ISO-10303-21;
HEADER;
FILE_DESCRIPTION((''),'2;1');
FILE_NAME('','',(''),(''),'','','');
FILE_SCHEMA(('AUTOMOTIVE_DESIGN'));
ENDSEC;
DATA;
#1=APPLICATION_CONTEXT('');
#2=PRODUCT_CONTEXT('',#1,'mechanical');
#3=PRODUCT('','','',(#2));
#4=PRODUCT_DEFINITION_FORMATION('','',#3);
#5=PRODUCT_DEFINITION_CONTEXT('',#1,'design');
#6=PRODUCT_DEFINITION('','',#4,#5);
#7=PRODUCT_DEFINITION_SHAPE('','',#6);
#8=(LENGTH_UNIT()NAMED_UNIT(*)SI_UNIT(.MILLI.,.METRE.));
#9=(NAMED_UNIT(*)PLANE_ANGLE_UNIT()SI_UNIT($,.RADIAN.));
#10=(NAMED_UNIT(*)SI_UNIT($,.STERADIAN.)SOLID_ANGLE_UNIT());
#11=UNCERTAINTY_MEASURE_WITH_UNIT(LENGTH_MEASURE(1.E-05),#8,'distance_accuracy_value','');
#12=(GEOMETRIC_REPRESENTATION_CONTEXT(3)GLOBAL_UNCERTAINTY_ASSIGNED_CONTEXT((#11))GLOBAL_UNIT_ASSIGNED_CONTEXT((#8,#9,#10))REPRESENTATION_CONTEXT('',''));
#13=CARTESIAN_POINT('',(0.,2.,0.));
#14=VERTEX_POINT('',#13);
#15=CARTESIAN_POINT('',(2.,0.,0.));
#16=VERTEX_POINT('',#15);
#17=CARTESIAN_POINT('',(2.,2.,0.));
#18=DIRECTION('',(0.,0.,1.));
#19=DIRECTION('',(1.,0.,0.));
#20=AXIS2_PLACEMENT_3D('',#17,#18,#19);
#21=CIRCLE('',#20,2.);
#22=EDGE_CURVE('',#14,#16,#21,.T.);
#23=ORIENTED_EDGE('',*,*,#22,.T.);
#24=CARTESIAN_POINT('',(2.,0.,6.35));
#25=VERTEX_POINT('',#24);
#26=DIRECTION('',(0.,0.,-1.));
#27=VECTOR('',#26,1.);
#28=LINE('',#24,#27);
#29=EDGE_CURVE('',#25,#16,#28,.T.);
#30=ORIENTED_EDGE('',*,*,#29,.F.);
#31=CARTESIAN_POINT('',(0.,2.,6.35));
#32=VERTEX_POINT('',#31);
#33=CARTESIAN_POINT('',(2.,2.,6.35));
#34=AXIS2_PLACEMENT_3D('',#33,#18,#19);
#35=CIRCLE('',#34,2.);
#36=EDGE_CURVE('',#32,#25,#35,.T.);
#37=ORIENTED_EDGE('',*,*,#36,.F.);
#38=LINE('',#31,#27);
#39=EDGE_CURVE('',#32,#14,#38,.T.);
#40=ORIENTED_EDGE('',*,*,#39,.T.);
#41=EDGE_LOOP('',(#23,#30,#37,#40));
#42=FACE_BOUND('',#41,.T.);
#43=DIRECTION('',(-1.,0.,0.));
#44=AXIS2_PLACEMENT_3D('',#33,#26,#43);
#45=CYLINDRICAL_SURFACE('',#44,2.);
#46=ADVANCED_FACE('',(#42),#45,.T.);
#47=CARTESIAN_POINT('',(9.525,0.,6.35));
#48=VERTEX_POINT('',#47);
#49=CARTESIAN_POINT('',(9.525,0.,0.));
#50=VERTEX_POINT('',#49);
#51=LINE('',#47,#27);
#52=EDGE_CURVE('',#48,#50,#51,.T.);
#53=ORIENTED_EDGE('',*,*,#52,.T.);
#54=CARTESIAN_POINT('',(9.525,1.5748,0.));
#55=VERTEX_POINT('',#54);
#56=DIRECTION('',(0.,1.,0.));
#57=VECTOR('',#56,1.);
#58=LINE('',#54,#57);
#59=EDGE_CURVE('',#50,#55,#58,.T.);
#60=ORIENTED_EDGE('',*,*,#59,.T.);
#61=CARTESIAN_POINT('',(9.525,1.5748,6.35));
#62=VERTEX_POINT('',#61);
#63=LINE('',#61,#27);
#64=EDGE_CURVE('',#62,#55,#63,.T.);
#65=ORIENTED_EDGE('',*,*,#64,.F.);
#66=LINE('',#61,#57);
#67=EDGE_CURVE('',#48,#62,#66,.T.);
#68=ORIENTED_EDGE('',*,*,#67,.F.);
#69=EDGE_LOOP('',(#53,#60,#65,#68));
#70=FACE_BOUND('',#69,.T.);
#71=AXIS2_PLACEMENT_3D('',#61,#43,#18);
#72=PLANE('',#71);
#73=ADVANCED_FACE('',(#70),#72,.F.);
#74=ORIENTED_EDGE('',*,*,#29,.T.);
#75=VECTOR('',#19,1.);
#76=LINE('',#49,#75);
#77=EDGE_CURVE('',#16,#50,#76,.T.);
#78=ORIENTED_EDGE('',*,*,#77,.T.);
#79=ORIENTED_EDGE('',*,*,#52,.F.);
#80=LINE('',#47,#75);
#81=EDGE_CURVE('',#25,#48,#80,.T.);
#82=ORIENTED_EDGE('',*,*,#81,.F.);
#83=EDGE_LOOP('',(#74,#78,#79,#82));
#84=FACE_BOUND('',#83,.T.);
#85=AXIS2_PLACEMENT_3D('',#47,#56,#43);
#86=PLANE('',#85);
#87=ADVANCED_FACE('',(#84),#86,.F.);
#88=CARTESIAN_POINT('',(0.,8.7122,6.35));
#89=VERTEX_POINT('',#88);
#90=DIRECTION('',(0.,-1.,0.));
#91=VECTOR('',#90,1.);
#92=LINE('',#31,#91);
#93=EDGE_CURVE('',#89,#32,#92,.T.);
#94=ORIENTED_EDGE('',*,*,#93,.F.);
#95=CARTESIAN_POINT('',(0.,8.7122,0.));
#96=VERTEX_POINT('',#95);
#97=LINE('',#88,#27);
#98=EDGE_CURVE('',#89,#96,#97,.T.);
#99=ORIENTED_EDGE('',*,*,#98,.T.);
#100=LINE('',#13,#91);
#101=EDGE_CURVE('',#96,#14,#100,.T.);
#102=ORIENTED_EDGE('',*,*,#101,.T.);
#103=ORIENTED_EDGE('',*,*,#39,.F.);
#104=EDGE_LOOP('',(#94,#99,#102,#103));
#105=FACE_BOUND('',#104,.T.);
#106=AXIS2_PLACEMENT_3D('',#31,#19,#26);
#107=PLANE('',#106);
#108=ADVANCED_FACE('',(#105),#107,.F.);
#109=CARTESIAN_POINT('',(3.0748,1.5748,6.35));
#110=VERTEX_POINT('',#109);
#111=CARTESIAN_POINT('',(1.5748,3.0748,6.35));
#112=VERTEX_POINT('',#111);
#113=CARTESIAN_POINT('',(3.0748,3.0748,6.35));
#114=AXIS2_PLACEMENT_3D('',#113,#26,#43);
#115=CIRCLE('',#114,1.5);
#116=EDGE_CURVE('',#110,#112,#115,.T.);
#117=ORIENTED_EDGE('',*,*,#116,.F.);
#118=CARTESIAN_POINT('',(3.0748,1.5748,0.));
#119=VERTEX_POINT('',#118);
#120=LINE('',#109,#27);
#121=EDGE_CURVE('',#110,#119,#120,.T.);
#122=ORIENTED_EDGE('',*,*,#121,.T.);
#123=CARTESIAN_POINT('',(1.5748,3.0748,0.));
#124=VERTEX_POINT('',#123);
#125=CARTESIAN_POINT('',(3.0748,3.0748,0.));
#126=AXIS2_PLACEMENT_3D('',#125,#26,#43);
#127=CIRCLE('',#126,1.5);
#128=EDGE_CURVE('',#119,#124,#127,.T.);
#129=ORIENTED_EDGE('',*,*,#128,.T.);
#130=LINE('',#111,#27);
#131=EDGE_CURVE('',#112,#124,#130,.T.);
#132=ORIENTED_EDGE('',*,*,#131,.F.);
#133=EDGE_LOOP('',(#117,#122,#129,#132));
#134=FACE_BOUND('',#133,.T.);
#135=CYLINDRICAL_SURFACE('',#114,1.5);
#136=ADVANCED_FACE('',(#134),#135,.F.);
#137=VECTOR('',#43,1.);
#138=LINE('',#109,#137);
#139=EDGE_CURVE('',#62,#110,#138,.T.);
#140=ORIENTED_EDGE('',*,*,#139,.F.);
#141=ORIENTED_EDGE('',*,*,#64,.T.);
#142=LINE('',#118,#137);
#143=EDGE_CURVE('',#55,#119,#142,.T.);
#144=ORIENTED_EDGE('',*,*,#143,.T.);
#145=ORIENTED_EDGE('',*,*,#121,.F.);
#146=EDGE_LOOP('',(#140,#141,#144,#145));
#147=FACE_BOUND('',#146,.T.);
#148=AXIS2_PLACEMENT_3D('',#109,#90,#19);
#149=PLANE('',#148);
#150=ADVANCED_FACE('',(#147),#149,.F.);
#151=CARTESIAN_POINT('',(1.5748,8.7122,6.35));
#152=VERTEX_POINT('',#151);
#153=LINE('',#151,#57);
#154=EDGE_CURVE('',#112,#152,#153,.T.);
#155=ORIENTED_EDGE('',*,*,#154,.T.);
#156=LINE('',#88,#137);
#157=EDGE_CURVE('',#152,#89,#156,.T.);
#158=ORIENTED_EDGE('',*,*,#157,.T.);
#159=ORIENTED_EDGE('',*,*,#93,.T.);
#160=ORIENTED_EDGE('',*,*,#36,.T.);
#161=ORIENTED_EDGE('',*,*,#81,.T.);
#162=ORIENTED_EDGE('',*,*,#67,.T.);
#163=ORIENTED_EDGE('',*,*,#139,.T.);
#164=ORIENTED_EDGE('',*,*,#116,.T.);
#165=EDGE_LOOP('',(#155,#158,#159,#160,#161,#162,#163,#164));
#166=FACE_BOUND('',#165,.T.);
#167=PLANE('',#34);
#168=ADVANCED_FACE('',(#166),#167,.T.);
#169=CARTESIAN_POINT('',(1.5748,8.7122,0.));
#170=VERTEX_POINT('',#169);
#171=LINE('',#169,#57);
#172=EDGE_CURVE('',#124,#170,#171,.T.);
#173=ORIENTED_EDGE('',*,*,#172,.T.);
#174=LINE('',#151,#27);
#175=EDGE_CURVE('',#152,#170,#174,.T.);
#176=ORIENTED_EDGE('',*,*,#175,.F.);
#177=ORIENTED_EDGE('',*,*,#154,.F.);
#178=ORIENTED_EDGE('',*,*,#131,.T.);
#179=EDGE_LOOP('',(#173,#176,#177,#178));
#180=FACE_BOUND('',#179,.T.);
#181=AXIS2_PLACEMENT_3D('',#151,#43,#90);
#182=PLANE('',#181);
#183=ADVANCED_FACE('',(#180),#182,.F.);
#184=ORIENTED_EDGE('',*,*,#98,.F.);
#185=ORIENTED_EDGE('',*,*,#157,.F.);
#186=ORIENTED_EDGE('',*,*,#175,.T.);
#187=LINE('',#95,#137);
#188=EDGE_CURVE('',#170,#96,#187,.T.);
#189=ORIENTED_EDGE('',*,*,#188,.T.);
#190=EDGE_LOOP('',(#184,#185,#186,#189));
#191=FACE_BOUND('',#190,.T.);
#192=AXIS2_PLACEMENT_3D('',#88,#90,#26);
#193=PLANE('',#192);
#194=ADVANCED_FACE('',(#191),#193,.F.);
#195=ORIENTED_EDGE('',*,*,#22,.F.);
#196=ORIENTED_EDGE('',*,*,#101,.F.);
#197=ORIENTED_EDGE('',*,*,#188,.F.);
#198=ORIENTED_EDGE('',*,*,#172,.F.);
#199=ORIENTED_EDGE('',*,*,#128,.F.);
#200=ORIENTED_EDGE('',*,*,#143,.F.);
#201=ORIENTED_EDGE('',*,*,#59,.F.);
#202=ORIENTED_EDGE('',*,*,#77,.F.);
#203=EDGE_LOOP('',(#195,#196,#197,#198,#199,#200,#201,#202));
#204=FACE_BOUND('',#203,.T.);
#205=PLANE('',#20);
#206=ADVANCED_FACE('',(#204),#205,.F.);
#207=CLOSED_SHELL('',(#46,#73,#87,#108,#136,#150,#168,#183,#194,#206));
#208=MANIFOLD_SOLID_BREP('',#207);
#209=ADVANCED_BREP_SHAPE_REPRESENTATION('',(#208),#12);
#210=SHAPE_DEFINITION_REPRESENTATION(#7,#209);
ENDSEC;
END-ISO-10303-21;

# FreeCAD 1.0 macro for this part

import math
import FreeCAD as App
import Part
import Sketcher

V = App.Vector
Q = App.Units.Quantity

doc = App.newDocument("Part")
body = doc.addObject("PartDesign::Body", "Body")

# Sketch on XY plane
sketch1 = body.newObject("Sketcher::SketchObject", "Sketch")
sketch1.AttachmentSupport = (doc.getObject("XY_Plane"), [""])
sketch1.MapMode = "FlatFace"
sketch1.addGeometry(Part.LineSegment(V(0, 8.7, 0), V(0, 2, 0)), False)
sketch1.addGeometry(Part.ArcOfCircle(Part.Circle(V(2, 2, 0), V(0, 0, 1), 2), math.radians(-180), math.radians(-90)), False)
sketch1.addGeometry(Part.LineSegment(V(2, 0, 0), V(9.5, 0, 0)), False)
sketch1.addGeometry(Part.LineSegment(V(9.5, 0, 0), V(9.5, 1.6, 0)), False)
sketch1.addGeometry(Part.LineSegment(V(9.5, 1.6, 0), V(3.1, 1.6, 0)), False)
sketch1.addGeometry(Part.ArcOfCircle(Part.Circle(V(3.1, 3.1, 0), V(0, 0, 1), 1.5), math.radians(180), math.radians(270)), False)
sketch1.addGeometry(Part.LineSegment(V(1.6, 3.1, 0), V(1.6, 8.7, 0)), False)
sketch1.addGeometry(Part.LineSegment(V(1.6, 8.7, 0), V(0, 8.7, 0)), False)
sketch1.addConstraint(Sketcher.Constraint("Tangent", 0, 2, 1, 1))
sketch1.addConstraint(Sketcher.Constraint("Tangent", 1, 2, 2, 1))
sketch1.addConstraint(Sketcher.Constraint("Coincident", 2, 2, 3, 1))
sketch1.addConstraint(Sketcher.Constraint("Coincident", 3, 2, 4, 1))
sketch1.addConstraint(Sketcher.Constraint("Tangent", 4, 2, 5, 2))
sketch1.addConstraint(Sketcher.Constraint("Tangent", 5, 1, 6, 1))
sketch1.addConstraint(Sketcher.Constraint("Coincident", 6, 2, 7, 1))
sketch1.addConstraint(Sketcher.Constraint("Coincident", 7, 2, 0, 1))
sketch1.addConstraint(Sketcher.Constraint("Vertical", 0))
sketch1.addConstraint(Sketcher.Constraint("Horizontal", 2))
sketch1.addConstraint(Sketcher.Constraint("Vertical", 3))
sketch1.addConstraint(Sketcher.Constraint("Horizontal", 4))
sketch1.addConstraint(Sketcher.Constraint("Vertical", 6))
sketch1.addConstraint(Sketcher.Constraint("Horizontal", 7))
sketch1.addConstraint(Sketcher.Constraint("PointOnObject", 0, 2, -2))
sketch1.addConstraint(Sketcher.Constraint("PointOnObject", 1, 2, -1))
sketch1.addConstraint(Sketcher.Constraint("Equal", 7, 3))
sketch1.addConstraint(Sketcher.Constraint("Radius", 1, Q("2 mm")))
sketch1.addConstraint(Sketcher.Constraint("Radius", 5, Q("1.5 mm")))
sketch1.addConstraint(Sketcher.Constraint("DistanceX", 2, 1, 2, 2, Q("7.525 mm")))
sketch1.addConstraint(Sketcher.Constraint("DistanceX", 4, 2, 4, 1, Q("6.4502 mm")))
sketch1.addConstraint(Sketcher.Constraint("DistanceY", 0, 2, 0, 1, Q("6.7122 mm")))
pad1 = body.newObject("PartDesign::Pad", "Pad")
pad1.Profile = sketch1
pad1.Length = 6.35

doc.recompute()
